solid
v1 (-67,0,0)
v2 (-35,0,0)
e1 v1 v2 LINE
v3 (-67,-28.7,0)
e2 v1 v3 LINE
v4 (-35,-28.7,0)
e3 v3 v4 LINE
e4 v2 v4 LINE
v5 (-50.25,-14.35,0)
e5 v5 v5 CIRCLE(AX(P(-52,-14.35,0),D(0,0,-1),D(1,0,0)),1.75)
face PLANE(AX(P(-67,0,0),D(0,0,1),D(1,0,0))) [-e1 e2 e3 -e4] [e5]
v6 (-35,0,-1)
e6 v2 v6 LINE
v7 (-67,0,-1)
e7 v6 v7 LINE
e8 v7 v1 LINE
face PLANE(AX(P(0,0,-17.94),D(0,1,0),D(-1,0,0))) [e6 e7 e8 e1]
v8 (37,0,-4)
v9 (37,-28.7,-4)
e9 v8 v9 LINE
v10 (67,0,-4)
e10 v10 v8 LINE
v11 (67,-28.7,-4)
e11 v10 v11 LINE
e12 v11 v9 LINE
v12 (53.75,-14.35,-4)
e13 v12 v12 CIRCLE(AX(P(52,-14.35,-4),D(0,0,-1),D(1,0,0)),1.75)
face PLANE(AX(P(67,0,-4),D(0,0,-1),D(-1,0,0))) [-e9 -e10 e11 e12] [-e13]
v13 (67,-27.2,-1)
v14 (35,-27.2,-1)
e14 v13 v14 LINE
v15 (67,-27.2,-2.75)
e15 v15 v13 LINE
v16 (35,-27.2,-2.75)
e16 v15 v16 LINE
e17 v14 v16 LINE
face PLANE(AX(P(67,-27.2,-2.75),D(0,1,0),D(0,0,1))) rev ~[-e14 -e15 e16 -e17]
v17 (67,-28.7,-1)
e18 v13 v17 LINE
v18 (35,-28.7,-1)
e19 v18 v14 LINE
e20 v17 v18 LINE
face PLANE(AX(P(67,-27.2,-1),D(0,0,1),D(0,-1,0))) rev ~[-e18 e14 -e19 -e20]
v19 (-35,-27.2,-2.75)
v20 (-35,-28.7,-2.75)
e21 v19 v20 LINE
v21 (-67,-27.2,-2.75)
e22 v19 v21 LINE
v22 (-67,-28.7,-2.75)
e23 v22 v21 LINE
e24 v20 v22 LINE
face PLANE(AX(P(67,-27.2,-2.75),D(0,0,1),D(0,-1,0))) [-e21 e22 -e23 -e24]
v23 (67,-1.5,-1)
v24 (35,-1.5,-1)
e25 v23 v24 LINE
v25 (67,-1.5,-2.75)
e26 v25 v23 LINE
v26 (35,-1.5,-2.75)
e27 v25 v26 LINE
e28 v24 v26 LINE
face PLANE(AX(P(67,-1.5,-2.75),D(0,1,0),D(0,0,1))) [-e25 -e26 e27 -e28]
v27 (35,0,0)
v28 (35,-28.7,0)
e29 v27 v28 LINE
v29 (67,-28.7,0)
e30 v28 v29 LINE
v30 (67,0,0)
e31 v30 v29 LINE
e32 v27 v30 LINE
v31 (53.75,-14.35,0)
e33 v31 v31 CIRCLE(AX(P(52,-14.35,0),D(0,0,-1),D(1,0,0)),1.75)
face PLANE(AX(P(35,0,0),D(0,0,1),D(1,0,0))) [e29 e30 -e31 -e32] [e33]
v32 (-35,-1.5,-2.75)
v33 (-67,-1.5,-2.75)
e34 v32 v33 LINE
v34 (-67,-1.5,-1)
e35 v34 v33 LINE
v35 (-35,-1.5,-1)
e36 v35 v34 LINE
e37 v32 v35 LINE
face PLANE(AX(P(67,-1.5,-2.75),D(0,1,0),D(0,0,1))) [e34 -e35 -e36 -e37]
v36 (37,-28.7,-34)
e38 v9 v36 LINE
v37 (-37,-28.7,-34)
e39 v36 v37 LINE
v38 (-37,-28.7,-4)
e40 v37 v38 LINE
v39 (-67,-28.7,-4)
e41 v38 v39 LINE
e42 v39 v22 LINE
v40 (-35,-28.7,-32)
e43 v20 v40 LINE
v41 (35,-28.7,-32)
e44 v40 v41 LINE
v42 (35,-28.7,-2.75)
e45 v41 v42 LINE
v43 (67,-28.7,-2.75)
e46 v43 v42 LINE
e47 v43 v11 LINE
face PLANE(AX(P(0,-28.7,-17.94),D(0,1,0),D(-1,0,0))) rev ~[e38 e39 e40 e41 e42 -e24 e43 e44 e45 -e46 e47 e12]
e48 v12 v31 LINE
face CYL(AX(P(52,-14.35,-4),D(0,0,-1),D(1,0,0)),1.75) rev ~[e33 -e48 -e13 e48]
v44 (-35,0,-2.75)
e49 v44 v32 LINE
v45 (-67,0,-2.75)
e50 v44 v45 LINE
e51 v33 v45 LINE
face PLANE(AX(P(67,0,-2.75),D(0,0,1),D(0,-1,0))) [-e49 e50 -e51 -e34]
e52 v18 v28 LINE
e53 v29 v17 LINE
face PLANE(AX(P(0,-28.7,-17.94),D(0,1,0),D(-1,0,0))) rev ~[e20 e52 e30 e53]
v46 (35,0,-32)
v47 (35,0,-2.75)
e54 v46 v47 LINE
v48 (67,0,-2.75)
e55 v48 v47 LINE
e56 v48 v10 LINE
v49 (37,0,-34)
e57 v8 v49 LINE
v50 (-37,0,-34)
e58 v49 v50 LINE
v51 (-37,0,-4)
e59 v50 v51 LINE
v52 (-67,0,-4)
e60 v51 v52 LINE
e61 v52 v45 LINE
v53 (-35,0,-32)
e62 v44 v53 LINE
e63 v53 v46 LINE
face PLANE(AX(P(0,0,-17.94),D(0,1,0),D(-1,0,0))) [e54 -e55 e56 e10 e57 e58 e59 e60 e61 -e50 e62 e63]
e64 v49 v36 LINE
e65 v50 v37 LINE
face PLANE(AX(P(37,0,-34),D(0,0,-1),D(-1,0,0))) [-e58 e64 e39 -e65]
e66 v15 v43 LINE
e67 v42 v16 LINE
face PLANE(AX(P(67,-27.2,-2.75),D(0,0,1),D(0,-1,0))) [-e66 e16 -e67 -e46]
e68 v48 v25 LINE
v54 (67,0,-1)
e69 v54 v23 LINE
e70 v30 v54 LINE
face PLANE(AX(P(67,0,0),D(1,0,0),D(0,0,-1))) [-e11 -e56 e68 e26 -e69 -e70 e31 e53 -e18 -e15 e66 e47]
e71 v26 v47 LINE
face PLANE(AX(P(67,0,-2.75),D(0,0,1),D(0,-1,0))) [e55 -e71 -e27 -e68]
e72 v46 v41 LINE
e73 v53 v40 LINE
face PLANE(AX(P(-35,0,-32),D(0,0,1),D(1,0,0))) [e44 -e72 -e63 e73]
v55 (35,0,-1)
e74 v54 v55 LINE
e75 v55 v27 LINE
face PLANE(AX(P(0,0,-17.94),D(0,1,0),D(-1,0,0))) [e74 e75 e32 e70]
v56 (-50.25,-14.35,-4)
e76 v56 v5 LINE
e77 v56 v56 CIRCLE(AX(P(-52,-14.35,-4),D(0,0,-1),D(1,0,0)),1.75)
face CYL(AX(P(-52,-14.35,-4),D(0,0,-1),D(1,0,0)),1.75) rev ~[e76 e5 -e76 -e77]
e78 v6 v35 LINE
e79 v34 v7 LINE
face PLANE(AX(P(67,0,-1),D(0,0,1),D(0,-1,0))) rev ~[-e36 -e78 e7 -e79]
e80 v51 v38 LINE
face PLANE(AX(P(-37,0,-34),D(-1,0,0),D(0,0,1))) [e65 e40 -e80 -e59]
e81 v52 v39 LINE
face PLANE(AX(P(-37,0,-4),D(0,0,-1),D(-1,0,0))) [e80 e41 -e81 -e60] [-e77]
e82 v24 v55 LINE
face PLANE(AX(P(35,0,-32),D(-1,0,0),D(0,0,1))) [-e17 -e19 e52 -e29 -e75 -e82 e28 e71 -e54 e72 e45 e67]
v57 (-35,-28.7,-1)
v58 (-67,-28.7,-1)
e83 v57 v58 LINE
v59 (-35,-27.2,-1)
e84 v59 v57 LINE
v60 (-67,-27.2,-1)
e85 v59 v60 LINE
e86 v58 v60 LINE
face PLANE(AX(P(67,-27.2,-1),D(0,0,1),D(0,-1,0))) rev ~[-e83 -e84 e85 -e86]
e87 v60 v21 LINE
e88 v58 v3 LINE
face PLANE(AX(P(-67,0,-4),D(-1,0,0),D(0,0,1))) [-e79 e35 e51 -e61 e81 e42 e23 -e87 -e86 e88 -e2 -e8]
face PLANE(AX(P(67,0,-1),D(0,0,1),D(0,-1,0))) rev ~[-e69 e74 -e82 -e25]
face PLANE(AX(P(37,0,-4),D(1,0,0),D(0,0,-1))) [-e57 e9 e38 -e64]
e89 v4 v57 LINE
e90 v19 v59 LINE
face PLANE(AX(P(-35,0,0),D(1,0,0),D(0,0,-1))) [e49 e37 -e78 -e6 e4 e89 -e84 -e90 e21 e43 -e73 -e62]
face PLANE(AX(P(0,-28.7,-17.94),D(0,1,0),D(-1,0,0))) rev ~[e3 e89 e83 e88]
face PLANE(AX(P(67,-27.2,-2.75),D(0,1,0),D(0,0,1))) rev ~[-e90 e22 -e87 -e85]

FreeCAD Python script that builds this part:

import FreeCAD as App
import Part
import Sketcher
Q = App.Units.Quantity


def add_polygon(sketch, points):
    """Adds a closed chain of lines whose ends are joined by coincident constraints."""
    first, n = sketch.GeometryCount, len(points)
    for a, b in zip(points, points[1:] + points[:1]):
        sketch.addGeometry(Part.LineSegment(App.Vector(*a, 0), App.Vector(*b, 0)), False)
    for i in range(n):
        sketch.addConstraint(Sketcher.Constraint("Coincident", first + i, 2, first + (i + 1) % n, 1))

doc = App.newDocument("Part")
body = doc.addObject("PartDesign::Body", "Body")

# Sketch on XZ plane
sketch1 = body.newObject("Sketcher::SketchObject", "Sketch")
sketch1.AttachmentSupport = (doc.getObject("XZ_Plane"), [""])
sketch1.MapMode = "FlatFace"
add_polygon(sketch1, [(-35, 0), (-67, 0), (-67, -4), (-37, -4), (-37, -34), (37, -34), (37, -4), (67, -4), (67, 0), (35, 0), (35, -32), (-35, -32)])  # lines 0-11
sketch1.addConstraint([
    Sketcher.Constraint("Horizontal", 0),
    Sketcher.Constraint("Vertical", 1),
    Sketcher.Constraint("Horizontal", 2),
    Sketcher.Constraint("Vertical", 3),
    Sketcher.Constraint("Horizontal", 4),
    Sketcher.Constraint("Vertical", 5),
    Sketcher.Constraint("Horizontal", 6),
    Sketcher.Constraint("Vertical", 7),
    Sketcher.Constraint("Horizontal", 8),
    Sketcher.Constraint("Vertical", 9),
    Sketcher.Constraint("Horizontal", 10),
    Sketcher.Constraint("Vertical", 11),
    Sketcher.Constraint("Symmetric", 0, 2, 7, 2, -1, 1),
    Sketcher.Constraint("Symmetric", 2, 2, 5, 2, -2),
    Sketcher.Constraint("Symmetric", 8, 2, 11, 2, -2),
    Sketcher.Constraint("Equal", 6, 3),
    Sketcher.Constraint("Equal", 8, 9),
    Sketcher.Constraint("DistanceX", 0, 2, 0, 1, Q("32 mm")),
    Sketcher.Constraint("DistanceX", 2, 1, 2, 2, Q("30 mm")),
    Sketcher.Constraint("DistanceX", 4, 1, 4, 2, Q("74 mm")),
    Sketcher.Constraint("DistanceY", 1, 2, 1, 1, Q("4 mm")),
])
pad1 = body.newObject("PartDesign::Pad", "Pad")
pad1.Profile = sketch1
pad1.Length = 28.7

# Sketch on XY plane
sketch2 = body.newObject("Sketcher::SketchObject", "Sketch001")
sketch2.AttachmentSupport = (doc.getObject("XY_Plane"), [""])
sketch2.MapMode = "FlatFace"
sketch2.AttachmentOffset = App.Placement(App.Vector(0, 0, -4), App.Rotation())
sketch2.addGeometry([
    Part.Circle(App.Vector(-52, -14.3, 0), App.Vector(0, 0, 1), 1.8),
    Part.Circle(App.Vector(52, -14.3, 0), App.Vector(0, 0, 1), 1.8),
], False)
sketch2.addConstraint([
    Sketcher.Constraint("Equal", 0, 1),
    Sketcher.Constraint("Symmetric", 0, 3, 1, 3, -2),
    Sketcher.Constraint("Diameter", 0, Q("3.5 mm")),
    Sketcher.Constraint("DistanceX", 0, 3, -1, 1, Q("52 mm")),
    Sketcher.Constraint("DistanceY", 0, 3, -1, 1, Q("14.35 mm")),
])
pocket1 = body.newObject("PartDesign::Pocket", "Pocket")
pocket1.Profile = sketch2
pocket1.Type = "ThroughAll"
pocket1.Reversed = True

# Sketch on YZ plane
sketch3 = body.newObject("Sketcher::SketchObject", "Sketch002")
sketch3.AttachmentSupport = (doc.getObject("YZ_Plane"), [""])
sketch3.MapMode = "FlatFace"
sketch3.AttachmentOffset = App.Placement(App.Vector(0, 0, 67), App.Rotation())
add_polygon(sketch3, [(-28.7, -2.8), (-27.2, -2.8), (-27.2, -1), (-28.7, -1)])  # lines 0-3
add_polygon(sketch3, [(-1.5, -2.8), (0, -2.8), (0, -1), (-1.5, -1)])  # lines 4-7
sketch3.addConstraint([
    Sketcher.Constraint("Horizontal", 0),
    Sketcher.Constraint("Vertical", 1),
    Sketcher.Constraint("Horizontal", 2),
    Sketcher.Constraint("Vertical", 3),
    Sketcher.Constraint("Horizontal", 4),
    Sketcher.Constraint("Vertical", 5),
    Sketcher.Constraint("Horizontal", 6),
    Sketcher.Constraint("Vertical", 7),
    Sketcher.Constraint("PointOnObject", 4, 2, -2),
    Sketcher.Constraint("Horizontal", 3, 2, 4, 2),
    Sketcher.Constraint("Horizontal", 2, 2, 5, 2),
    Sketcher.Constraint("Equal", 2, 4),
    Sketcher.Constraint("DistanceX", 0, 1, 0, 2, Q("1.5 mm")),
    Sketcher.Constraint("DistanceY", 1, 2, -1, 1, Q("1 mm")),
    Sketcher.Constraint("DistanceY", 1, 1, 1, 2, Q("1.75 mm")),
    Sketcher.Constraint("DistanceX", 0, 2, -1, 1, Q("27.2 mm")),
])
pocket2 = body.newObject("PartDesign::Pocket", "Pocket001")
pocket2.Profile = sketch3
pocket2.Type = "ThroughAll"

doc.recompute()
